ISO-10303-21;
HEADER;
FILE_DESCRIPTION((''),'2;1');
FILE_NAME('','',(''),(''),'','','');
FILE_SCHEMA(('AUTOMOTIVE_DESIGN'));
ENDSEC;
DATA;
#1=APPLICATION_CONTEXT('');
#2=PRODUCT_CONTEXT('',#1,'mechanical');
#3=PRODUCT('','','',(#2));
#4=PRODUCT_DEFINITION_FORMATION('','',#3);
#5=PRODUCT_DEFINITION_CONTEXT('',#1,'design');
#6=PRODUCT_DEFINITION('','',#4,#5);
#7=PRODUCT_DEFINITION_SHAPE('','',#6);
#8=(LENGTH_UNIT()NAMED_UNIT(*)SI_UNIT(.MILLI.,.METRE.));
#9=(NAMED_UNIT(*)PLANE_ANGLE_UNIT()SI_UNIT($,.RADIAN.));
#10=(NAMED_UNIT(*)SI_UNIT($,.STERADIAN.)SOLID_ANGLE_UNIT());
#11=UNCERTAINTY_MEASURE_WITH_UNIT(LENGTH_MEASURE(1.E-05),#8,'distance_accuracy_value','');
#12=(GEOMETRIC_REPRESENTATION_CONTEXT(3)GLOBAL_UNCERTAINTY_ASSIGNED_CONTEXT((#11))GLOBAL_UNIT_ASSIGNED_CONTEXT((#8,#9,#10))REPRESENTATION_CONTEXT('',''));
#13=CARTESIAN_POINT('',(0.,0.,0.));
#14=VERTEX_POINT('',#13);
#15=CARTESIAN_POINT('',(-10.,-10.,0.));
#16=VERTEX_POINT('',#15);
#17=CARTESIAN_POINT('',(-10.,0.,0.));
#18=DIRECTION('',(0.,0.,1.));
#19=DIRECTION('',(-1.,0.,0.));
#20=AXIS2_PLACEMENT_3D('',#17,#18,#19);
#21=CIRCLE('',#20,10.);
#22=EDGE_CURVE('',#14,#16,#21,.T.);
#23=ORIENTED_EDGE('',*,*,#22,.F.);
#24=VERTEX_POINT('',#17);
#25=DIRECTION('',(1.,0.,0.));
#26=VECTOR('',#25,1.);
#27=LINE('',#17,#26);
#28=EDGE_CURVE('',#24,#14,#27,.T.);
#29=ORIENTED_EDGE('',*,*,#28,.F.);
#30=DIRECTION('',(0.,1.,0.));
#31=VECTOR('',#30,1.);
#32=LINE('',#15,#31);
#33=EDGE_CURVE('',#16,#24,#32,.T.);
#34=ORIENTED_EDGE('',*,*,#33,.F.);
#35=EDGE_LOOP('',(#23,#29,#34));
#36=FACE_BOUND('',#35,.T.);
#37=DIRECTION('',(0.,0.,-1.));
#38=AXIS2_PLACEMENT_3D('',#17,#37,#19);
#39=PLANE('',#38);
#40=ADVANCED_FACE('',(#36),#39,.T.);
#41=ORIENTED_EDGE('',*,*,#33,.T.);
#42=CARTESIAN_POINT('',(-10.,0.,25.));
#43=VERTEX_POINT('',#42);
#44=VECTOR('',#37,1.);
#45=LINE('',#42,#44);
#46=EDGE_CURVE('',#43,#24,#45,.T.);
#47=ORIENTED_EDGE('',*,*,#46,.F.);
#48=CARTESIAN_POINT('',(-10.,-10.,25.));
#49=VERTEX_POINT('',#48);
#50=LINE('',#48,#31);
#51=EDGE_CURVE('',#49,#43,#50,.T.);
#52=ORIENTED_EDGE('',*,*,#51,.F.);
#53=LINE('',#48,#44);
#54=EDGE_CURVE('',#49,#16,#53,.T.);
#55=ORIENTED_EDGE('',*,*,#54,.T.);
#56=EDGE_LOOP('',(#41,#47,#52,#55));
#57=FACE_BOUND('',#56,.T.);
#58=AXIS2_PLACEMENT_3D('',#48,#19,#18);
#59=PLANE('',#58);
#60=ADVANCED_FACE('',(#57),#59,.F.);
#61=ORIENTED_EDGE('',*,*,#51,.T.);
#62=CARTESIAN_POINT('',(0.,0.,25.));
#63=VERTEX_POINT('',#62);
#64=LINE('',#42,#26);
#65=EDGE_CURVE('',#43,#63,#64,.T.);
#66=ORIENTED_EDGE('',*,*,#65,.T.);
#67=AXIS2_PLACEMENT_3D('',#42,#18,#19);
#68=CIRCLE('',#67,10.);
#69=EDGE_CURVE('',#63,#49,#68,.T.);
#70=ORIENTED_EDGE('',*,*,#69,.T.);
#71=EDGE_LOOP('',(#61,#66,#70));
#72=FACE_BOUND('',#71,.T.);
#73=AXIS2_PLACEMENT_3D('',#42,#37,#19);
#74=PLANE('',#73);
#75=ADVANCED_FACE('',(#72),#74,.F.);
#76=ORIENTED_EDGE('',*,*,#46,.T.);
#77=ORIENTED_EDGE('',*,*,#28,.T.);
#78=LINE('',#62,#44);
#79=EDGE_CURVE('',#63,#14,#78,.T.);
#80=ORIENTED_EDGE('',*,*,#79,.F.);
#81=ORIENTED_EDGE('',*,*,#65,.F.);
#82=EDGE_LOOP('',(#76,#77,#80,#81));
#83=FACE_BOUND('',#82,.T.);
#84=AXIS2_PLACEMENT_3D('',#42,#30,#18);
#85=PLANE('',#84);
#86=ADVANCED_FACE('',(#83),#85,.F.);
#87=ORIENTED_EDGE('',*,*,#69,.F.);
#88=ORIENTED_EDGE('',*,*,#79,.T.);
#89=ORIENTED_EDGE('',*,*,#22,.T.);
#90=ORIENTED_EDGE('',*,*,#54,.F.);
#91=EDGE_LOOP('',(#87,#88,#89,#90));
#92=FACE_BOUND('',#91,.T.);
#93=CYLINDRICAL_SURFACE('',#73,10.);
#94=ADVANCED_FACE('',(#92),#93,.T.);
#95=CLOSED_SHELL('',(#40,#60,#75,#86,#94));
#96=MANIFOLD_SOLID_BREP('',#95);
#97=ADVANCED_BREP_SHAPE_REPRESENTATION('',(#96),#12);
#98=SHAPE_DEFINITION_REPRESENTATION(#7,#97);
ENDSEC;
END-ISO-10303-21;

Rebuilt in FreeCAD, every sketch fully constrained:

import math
import FreeCAD as App
import Part
import Sketcher

doc = App.newDocument("Part")
body = doc.addObject("PartDesign::Body", "Body")

# Sketch on XY plane
sketch1 = body.newObject("Sketcher::SketchObject", "Sketch")
sketch1.AttachmentSupport = (doc.getObject("XY_Plane"), [""])
sketch1.MapMode = "FlatFace"
sketch1.addGeometry([
    Part.LineSegment(App.Vector(-10, -10, 0), App.Vector(-10, 0, 0)),
    Part.LineSegment(App.Vector(-10, 0, 0), App.Vector(0, 0, 0)),
    Part.ArcOfCircle(Part.Circle(App.Vector(-10, 0, 0), App.Vector(0, 0, 1), 10), math.radians(0), math.radians(270)),
], False)
sketch1.addConstraint([
    Sketcher.Constraint("Coincident", 0, 2, 1, 1),
    Sketcher.Constraint("Coincident", 1, 2, 2, 1),
    Sketcher.Constraint("Coincident", 2, 2, 0, 1),
    Sketcher.Constraint("Vertical", 0),
    Sketcher.Constraint("Horizontal", 1),
    Sketcher.Constraint("Coincident", 1, 2, -1, 1),
    Sketcher.Constraint("Coincident", 0, 2, 2, 3),
    Sketcher.Constraint("Radius", 2, 10.0),
])
pad1 = body.newObject("PartDesign::Pad", "Pad")
pad1.Profile = sketch1
pad1.Length = 25

doc.recompute()
